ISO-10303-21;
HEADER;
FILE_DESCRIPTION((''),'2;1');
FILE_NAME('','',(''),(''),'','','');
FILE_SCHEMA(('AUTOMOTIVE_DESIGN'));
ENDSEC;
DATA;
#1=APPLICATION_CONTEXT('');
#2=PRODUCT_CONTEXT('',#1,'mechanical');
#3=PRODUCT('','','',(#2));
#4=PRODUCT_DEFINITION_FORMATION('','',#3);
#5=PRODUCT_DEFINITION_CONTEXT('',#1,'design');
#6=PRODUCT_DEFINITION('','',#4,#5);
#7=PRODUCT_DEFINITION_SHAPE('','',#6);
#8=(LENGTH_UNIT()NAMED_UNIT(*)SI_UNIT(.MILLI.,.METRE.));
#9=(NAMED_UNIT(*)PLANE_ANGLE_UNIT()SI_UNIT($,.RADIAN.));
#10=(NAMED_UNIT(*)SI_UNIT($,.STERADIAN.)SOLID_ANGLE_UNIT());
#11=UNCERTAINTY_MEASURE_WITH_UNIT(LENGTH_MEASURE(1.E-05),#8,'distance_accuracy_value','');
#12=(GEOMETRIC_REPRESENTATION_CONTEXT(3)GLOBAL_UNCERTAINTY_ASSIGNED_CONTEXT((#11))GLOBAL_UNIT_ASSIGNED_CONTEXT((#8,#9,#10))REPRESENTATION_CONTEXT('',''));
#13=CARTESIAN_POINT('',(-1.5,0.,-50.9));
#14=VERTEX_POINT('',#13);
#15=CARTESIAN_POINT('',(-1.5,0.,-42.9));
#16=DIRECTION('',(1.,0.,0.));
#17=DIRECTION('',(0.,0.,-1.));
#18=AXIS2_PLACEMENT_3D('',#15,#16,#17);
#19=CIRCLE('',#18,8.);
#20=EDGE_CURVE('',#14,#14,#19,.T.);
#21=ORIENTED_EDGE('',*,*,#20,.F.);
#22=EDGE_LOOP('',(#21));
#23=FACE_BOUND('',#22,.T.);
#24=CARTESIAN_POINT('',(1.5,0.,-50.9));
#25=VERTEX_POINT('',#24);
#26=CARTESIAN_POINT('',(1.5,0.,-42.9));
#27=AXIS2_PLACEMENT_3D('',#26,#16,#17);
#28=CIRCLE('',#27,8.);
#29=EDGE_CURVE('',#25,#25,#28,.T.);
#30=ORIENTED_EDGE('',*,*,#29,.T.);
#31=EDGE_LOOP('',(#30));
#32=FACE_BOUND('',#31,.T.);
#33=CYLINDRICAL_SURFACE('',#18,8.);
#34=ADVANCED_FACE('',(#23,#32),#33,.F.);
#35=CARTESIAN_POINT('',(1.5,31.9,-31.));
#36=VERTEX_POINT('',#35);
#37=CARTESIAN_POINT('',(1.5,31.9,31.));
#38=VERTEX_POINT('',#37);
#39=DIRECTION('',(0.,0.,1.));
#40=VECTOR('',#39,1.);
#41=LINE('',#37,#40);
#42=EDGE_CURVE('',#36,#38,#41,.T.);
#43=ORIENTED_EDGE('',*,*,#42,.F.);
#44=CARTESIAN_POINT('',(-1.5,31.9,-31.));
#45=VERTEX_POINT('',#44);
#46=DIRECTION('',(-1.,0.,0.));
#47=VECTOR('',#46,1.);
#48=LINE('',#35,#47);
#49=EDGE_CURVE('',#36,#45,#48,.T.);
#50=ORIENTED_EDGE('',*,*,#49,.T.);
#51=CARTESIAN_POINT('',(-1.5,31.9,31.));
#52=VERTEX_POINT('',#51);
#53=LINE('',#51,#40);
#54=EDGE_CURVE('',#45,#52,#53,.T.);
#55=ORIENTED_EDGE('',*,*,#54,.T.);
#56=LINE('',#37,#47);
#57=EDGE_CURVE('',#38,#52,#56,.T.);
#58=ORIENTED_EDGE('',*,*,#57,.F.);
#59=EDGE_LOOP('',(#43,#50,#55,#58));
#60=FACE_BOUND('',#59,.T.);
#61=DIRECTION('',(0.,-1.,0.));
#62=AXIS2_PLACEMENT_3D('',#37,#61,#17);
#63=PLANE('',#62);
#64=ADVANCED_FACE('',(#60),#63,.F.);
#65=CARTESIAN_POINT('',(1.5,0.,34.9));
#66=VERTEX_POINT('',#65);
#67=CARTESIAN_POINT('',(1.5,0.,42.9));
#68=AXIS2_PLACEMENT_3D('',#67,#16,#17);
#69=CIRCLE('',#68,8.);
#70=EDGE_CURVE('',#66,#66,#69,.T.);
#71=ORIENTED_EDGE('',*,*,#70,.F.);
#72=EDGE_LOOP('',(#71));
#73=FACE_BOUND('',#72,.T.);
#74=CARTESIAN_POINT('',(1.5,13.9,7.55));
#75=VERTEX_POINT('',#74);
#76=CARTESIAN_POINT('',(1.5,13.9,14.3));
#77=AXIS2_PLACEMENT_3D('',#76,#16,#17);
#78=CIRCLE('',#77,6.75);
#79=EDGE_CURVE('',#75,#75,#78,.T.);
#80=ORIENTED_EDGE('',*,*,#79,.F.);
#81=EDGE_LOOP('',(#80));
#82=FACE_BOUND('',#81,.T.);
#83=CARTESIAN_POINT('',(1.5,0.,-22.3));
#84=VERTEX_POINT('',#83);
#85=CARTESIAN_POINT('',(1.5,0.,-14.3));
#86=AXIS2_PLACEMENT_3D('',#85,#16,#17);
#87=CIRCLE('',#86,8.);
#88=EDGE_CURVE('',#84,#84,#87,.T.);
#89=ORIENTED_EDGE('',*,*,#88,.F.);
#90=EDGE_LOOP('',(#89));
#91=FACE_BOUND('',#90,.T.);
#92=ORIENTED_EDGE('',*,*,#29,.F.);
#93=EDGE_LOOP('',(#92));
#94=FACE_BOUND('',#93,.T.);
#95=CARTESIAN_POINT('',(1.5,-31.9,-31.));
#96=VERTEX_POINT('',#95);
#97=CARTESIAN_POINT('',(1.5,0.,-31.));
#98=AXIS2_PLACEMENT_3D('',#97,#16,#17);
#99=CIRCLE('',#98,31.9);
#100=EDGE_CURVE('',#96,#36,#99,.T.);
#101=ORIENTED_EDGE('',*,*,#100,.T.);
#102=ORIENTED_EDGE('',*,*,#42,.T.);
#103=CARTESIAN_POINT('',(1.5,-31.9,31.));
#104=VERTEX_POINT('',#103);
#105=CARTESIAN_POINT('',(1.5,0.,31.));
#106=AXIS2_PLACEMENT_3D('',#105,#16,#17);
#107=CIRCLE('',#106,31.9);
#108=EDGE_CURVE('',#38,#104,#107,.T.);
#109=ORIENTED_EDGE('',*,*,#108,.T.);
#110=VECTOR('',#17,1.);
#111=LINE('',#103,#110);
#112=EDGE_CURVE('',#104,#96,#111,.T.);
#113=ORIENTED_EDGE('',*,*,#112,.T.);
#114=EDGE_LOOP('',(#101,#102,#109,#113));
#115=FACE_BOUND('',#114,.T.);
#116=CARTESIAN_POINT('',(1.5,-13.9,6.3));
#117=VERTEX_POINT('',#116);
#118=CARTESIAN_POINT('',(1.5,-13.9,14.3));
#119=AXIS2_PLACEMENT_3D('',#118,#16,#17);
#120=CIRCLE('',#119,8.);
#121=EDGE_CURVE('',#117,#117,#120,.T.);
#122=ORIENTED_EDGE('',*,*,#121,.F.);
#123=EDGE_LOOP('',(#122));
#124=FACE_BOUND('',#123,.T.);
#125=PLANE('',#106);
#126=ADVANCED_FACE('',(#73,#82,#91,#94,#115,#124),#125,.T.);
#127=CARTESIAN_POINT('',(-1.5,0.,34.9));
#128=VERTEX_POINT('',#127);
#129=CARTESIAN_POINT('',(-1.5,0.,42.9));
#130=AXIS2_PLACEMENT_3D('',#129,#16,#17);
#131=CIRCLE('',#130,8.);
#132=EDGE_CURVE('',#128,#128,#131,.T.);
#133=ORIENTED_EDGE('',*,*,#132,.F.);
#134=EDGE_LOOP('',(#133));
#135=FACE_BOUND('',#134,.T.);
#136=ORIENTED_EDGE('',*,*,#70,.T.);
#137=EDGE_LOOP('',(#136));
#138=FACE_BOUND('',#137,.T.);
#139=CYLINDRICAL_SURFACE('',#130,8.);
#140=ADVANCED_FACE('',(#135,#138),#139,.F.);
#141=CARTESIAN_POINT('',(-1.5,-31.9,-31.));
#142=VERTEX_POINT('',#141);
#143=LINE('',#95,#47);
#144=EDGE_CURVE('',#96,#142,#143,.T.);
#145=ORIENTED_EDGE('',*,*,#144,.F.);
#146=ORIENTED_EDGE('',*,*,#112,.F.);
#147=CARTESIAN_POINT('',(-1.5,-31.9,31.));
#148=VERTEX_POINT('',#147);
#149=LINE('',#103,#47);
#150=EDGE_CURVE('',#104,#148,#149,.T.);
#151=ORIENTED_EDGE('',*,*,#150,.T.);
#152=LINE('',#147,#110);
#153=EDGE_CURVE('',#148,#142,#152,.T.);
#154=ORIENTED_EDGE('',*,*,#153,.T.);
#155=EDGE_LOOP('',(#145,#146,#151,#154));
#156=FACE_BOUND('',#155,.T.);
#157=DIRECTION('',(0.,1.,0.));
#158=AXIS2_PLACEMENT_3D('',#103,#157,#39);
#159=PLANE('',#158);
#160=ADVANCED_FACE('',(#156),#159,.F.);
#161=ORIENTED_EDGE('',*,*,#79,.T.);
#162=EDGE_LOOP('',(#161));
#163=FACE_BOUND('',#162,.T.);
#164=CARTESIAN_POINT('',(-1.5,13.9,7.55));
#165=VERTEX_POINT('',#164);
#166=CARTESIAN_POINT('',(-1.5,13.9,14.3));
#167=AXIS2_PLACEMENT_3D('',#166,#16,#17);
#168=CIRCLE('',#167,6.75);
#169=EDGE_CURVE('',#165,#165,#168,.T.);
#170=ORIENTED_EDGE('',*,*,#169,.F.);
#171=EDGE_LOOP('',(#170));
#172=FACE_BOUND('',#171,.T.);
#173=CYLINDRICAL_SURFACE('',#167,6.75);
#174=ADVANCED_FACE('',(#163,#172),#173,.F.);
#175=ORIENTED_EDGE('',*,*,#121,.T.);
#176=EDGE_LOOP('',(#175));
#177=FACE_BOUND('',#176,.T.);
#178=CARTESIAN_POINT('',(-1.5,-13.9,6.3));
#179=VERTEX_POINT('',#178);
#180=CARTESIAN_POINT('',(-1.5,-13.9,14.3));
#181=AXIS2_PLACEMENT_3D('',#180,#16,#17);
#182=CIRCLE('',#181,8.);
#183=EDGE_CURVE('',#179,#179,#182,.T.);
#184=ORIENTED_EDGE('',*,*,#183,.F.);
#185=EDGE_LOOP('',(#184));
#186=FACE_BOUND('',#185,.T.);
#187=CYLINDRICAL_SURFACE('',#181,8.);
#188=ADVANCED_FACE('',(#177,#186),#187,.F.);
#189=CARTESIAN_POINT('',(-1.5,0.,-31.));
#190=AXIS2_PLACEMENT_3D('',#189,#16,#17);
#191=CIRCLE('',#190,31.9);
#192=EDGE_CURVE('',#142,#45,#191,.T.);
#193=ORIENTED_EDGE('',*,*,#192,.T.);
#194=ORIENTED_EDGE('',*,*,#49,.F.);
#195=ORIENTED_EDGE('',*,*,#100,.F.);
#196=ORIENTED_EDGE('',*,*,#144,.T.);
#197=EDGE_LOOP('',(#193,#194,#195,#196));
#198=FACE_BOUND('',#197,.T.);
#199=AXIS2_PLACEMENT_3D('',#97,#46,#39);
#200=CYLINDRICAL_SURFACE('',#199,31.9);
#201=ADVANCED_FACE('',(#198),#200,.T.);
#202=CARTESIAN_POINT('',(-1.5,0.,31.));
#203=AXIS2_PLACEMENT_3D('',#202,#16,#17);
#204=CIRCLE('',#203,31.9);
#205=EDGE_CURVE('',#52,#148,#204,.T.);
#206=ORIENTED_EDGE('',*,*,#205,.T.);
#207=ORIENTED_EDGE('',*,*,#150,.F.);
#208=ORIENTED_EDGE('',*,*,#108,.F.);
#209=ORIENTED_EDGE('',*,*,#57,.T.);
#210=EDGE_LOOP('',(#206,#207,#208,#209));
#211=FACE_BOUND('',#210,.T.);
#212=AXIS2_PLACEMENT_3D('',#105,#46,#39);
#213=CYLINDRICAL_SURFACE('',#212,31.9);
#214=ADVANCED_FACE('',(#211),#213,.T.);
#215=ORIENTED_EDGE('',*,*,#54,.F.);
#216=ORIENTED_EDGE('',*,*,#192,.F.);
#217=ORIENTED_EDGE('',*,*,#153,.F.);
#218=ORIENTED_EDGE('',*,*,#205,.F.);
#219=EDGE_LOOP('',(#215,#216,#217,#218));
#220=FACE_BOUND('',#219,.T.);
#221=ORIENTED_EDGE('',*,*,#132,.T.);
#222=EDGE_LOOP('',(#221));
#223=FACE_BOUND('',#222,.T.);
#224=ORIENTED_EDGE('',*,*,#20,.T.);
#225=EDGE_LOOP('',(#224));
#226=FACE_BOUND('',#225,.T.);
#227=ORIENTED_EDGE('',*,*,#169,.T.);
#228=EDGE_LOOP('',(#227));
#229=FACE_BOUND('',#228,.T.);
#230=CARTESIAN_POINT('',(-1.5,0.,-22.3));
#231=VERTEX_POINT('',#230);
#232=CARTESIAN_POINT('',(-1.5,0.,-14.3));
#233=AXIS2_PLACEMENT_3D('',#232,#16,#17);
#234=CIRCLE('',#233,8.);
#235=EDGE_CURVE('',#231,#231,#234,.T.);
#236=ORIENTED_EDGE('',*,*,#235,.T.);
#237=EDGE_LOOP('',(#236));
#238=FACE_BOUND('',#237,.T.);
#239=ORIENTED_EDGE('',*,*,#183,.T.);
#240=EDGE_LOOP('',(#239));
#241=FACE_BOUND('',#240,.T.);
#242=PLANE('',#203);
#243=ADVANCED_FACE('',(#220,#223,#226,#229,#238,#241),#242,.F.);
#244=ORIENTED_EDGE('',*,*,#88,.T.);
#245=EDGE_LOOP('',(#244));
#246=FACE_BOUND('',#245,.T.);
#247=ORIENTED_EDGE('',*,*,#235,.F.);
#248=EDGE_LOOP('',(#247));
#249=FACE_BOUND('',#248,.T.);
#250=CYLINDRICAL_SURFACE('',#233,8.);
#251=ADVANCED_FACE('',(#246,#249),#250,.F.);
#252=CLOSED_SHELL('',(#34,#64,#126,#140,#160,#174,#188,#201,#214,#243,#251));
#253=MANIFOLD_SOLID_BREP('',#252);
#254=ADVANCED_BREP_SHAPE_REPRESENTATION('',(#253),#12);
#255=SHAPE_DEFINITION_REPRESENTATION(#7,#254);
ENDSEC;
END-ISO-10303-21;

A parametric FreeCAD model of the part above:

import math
import FreeCAD as App
import Part
import Sketcher
Q = App.Units.Quantity

doc = App.newDocument("Part")
body = doc.addObject("PartDesign::Body", "Body")

# Sketch on YZ plane
sketch1 = body.newObject("Sketcher::SketchObject", "Sketch")
sketch1.AttachmentSupport = (doc.getObject("YZ_Plane"), [""])
sketch1.MapMode = "FlatFace"
sketch1.addGeometry([
    Part.LineSegment(App.Vector(31.9, -31, 0), App.Vector(31.9, 31, 0)),
    Part.ArcOfCircle(Part.Circle(App.Vector(0, 31, 0), App.Vector(0, 0, 1), 31.9), math.radians(0), math.radians(180)),
    Part.LineSegment(App.Vector(-31.9, 31, 0), App.Vector(-31.9, -31, 0)),
    Part.ArcOfCircle(Part.Circle(App.Vector(0, -31, 0), App.Vector(0, 0, 1), 31.9), math.radians(180), math.radians(360)),
], False)
sketch1.addConstraint([
    Sketcher.Constraint("Tangent", 0, 2, 1, 1),
    Sketcher.Constraint("Tangent", 1, 2, 2, 1),
    Sketcher.Constraint("Tangent", 2, 2, 3, 1),
    Sketcher.Constraint("Tangent", 3, 2, 0, 1),
    Sketcher.Constraint("Vertical", 0),
    Sketcher.Constraint("Vertical", 2),
    Sketcher.Constraint("Symmetric", 1, 3, 3, 3, -1, 1),
    Sketcher.Constraint("Radius", 1, Q("31.9 mm")),
    Sketcher.Constraint("DistanceY", 0, 1, 0, 2, Q("62 mm")),
])
pad1 = body.newObject("PartDesign::Pad", "Pad")
pad1.Profile = sketch1
pad1.Length = 3
pad1.Midplane = True

# Sketch on YZ plane
sketch2 = body.newObject("Sketcher::SketchObject", "Sketch001")
sketch2.AttachmentSupport = (doc.getObject("YZ_Plane"), [""])
sketch2.MapMode = "FlatFace"
sketch2.AttachmentOffset = App.Placement(App.Vector(0, 0, 1.5), App.Rotation())
sketch2.addGeometry([
    Part.Circle(App.Vector(0, 42.9, 0), App.Vector(0, 0, 1), 8),  # 0
    Part.Circle(App.Vector(0, -42.9, 0), App.Vector(0, 0, 1), 8),  # 1
    Part.Circle(App.Vector(13.9, 14.3, 0), App.Vector(0, 0, 1), 6.75),  # 2
    Part.Circle(App.Vector(0, -14.3, 0), App.Vector(0, 0, 1), 8),  # 3
    Part.Circle(App.Vector(-13.9, 14.3, 0), App.Vector(0, 0, 1), 8),  # 4
], False)
sketch2.addConstraint([
    Sketcher.Constraint("Equal", 0, 1),
    Sketcher.Constraint("Equal", 1, 3),
    Sketcher.Constraint("Equal", 3, 4),
    Sketcher.Constraint("Symmetric", 0, 3, 1, 3, -1, 1),
    Sketcher.Constraint("Symmetric", 2, 3, 4, 3, -2),
    Sketcher.Constraint("PointOnObject", 0, 3, -2),
    Sketcher.Constraint("PointOnObject", 3, 3, -2),
    Sketcher.Constraint("Diameter", 0, Q("16 mm")),
    Sketcher.Constraint("Diameter", 2, Q("13.5 mm")),
    Sketcher.Constraint("DistanceY", -1, 1, 0, 3, Q("42.9 mm")),
    Sketcher.Constraint("DistanceX", -1, 1, 2, 3, Q("13.9 mm")),
    Sketcher.Constraint("DistanceY", -1, 1, 2, 3, Q("14.3 mm")),
    Sketcher.Constraint("DistanceY", 3, 3, -1, 1, Q("14.3 mm")),
])
pocket1 = body.newObject("PartDesign::Pocket", "Pocket")
pocket1.Profile = sketch2
pocket1.Type = "ThroughAll"

doc.recompute()
